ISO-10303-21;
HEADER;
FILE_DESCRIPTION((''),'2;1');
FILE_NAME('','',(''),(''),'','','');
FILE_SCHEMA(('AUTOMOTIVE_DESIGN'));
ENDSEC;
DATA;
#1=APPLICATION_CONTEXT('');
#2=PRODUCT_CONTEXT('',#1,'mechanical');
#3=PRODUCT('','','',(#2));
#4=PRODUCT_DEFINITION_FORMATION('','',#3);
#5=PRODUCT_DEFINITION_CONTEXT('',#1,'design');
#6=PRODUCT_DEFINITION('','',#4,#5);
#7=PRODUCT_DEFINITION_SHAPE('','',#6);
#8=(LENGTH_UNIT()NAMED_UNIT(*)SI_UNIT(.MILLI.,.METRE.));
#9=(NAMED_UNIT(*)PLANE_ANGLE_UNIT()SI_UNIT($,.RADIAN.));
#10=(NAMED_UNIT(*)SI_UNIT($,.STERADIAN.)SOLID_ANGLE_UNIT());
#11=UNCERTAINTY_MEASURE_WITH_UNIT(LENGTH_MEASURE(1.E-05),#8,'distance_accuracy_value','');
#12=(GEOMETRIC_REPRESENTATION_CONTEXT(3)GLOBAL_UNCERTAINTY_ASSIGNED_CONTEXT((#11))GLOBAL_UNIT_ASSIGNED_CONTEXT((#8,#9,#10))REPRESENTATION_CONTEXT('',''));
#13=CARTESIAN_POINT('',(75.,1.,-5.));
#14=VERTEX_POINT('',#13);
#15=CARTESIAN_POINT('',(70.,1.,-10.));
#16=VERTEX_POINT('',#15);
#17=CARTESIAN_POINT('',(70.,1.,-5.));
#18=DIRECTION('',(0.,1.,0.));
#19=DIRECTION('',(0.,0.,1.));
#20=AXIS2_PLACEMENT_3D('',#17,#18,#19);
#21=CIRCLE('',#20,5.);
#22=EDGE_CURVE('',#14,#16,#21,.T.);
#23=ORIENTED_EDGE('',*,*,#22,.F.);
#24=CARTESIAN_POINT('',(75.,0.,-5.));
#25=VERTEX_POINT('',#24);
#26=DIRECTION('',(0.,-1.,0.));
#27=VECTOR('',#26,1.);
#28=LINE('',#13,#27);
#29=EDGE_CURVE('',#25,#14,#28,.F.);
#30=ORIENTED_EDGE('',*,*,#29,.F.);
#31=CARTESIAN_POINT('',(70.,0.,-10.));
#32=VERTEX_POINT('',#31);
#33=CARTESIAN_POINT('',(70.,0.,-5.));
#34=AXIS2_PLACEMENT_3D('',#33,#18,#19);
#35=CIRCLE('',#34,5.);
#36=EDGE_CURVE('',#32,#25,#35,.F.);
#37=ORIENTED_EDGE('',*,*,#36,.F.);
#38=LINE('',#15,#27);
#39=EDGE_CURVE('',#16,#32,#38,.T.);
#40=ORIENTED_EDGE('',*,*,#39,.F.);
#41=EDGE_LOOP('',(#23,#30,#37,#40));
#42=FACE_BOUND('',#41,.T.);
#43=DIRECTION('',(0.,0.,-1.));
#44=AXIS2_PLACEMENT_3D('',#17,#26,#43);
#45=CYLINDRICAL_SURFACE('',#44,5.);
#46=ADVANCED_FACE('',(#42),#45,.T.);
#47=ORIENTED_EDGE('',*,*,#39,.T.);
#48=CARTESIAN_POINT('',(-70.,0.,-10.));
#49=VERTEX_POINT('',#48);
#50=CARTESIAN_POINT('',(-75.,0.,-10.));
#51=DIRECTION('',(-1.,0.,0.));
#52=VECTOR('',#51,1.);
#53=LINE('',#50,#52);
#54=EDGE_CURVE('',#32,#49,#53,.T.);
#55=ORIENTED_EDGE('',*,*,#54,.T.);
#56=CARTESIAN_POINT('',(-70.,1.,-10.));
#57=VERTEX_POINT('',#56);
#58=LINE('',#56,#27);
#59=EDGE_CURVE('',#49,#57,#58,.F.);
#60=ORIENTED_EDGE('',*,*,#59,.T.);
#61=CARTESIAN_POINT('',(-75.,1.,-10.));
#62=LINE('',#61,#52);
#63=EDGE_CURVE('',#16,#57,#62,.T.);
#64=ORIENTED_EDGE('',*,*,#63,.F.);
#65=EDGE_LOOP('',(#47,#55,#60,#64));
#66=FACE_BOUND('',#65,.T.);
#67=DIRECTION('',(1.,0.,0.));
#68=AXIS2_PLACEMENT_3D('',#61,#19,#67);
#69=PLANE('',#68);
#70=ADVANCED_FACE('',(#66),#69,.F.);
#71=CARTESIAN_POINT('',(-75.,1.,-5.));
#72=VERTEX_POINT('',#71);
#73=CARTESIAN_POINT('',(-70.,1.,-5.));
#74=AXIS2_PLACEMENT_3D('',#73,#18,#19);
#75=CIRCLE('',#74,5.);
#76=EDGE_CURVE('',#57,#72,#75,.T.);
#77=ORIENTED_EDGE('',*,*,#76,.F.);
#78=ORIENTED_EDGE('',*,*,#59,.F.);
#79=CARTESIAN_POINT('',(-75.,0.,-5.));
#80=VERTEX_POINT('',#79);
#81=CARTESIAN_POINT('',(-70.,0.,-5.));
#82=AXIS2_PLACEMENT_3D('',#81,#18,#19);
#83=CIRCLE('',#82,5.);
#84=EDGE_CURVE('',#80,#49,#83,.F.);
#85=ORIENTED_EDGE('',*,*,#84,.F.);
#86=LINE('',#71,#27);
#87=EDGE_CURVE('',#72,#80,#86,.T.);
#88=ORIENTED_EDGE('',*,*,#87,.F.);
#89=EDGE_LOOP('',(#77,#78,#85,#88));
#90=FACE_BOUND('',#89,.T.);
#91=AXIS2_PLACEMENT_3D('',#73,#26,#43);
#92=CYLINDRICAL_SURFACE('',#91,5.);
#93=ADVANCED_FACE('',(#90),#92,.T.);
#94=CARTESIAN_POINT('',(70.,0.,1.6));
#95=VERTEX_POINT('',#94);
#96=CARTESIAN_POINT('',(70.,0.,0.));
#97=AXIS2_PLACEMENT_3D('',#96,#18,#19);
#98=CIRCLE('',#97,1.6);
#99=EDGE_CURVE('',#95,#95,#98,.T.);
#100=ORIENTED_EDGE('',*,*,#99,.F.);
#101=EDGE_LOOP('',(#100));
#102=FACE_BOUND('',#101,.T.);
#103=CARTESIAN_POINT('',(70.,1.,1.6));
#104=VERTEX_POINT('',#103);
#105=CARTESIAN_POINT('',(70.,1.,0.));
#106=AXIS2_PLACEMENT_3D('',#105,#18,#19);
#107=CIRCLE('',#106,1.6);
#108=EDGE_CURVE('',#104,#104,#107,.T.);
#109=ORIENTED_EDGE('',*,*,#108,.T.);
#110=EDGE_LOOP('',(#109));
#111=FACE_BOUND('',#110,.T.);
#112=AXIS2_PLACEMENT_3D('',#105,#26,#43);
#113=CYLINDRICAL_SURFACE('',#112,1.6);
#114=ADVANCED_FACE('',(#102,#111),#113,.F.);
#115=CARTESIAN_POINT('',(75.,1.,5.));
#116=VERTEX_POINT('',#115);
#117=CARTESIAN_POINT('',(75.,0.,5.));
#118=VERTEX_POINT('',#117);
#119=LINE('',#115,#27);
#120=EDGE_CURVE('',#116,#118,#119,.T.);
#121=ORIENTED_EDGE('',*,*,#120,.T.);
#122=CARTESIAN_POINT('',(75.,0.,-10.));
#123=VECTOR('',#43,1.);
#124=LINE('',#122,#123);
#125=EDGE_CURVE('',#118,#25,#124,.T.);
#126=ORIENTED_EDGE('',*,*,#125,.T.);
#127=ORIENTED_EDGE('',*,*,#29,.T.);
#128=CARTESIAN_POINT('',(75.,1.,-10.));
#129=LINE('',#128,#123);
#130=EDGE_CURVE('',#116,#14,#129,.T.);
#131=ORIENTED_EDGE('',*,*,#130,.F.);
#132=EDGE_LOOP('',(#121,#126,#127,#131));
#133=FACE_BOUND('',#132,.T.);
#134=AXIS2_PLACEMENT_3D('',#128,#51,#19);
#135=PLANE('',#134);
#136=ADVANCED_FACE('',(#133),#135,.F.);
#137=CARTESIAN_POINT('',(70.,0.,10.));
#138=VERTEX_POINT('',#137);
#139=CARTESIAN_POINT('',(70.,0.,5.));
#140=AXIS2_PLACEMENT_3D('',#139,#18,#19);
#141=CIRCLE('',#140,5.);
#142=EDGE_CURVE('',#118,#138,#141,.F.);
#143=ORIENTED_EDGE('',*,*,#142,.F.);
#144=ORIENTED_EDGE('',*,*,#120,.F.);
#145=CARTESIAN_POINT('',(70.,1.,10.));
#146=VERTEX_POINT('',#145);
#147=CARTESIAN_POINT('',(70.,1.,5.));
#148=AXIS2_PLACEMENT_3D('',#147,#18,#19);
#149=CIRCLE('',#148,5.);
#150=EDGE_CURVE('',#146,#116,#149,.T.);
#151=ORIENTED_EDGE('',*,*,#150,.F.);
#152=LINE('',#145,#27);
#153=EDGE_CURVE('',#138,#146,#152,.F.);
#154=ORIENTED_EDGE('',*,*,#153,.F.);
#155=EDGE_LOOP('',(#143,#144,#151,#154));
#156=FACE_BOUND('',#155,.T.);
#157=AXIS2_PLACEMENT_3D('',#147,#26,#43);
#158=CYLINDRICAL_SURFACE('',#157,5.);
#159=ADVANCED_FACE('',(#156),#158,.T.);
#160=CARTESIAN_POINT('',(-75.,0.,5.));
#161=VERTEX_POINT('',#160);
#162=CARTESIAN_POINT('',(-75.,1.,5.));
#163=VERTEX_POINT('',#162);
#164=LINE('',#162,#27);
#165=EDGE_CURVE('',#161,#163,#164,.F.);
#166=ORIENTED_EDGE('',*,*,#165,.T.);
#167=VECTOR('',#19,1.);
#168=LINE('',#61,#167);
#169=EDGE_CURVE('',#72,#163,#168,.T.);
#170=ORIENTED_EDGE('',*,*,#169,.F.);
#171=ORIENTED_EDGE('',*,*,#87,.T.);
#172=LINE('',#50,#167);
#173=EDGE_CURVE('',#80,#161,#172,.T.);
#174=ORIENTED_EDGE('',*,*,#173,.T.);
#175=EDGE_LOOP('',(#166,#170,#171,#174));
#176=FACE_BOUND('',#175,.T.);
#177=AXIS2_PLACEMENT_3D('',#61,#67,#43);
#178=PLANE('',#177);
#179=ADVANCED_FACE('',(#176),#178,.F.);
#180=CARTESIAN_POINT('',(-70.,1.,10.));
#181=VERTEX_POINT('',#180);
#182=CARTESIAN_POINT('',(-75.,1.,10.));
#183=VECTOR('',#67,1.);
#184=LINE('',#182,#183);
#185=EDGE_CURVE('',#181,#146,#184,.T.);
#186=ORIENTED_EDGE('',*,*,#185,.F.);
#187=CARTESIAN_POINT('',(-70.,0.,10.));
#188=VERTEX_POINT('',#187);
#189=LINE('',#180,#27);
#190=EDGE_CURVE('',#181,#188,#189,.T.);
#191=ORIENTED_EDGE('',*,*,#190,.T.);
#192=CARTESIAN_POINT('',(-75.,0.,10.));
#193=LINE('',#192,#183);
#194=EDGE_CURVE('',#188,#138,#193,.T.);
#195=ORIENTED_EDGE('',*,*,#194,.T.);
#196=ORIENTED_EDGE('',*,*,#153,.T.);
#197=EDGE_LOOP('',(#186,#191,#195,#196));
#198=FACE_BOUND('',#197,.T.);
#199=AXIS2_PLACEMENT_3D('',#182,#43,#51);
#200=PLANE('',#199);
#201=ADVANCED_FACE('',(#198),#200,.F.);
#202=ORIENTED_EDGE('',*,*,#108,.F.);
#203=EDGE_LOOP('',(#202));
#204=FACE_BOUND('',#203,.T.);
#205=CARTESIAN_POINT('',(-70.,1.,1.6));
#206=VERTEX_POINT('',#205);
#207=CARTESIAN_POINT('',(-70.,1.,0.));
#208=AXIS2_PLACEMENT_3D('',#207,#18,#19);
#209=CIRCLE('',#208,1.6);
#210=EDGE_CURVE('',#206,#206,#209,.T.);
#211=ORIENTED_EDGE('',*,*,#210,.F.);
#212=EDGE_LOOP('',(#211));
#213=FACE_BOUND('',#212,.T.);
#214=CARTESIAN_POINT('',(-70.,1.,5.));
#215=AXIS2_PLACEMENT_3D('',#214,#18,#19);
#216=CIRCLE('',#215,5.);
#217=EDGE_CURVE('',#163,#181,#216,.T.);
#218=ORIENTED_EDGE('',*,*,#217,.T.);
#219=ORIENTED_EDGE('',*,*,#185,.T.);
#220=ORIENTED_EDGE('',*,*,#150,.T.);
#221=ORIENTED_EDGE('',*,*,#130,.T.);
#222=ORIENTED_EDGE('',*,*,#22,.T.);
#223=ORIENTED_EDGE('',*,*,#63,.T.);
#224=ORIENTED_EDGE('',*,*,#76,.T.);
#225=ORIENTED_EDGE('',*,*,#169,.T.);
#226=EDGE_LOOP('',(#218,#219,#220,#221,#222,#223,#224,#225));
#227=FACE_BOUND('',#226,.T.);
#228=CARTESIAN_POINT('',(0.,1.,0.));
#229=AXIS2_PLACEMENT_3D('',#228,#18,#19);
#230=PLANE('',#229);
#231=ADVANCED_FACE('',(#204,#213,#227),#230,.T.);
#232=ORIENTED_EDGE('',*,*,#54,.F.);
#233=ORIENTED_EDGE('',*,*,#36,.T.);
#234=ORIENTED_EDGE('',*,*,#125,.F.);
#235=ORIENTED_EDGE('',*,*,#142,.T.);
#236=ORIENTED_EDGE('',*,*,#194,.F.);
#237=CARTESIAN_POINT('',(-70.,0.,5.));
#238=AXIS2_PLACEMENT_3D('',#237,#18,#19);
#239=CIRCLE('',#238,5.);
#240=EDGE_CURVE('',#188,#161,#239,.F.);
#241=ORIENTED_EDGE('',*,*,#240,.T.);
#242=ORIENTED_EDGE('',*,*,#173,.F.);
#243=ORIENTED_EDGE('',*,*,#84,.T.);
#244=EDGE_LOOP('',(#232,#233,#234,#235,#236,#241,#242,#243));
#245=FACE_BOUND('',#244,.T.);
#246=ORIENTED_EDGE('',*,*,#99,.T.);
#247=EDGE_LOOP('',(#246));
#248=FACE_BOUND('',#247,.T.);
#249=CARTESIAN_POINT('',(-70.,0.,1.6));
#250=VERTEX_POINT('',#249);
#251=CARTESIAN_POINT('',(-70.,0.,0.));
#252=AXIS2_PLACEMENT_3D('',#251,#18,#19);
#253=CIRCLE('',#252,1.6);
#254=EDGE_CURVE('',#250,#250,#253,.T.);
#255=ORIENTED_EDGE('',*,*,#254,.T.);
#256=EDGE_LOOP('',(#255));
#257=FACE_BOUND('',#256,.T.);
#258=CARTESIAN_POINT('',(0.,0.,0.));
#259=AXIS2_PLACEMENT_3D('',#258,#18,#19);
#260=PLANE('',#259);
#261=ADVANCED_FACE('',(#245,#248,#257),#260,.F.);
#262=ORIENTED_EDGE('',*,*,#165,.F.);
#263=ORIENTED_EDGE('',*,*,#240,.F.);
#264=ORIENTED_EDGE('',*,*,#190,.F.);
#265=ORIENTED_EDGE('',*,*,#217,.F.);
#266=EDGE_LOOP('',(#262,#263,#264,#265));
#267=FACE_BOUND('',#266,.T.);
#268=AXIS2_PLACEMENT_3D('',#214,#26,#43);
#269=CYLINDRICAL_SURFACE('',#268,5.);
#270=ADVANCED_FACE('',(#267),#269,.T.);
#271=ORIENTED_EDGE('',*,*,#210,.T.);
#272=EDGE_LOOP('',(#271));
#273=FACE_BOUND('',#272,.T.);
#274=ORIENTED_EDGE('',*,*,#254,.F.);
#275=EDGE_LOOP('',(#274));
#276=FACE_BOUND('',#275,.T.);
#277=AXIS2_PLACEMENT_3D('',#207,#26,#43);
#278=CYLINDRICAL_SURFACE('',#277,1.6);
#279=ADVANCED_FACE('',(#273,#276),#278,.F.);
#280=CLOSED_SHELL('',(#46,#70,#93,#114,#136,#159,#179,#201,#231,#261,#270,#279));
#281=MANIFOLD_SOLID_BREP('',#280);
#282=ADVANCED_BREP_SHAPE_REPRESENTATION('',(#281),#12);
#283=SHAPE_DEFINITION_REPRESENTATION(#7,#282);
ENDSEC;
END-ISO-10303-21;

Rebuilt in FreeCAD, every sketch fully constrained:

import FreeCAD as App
import Part
import Sketcher


def edges_at(feature, points):
    """Names of the edges that pass closest to the given points."""
    edges = feature.Shape.Edges
    near = lambda p: min(range(len(edges)), key=lambda i: edges[i].distToShape(Part.Vertex(*p))[0])
    return sorted({f"Edge{near(p) + 1}" for p in points})

doc = App.newDocument("Part")
body = doc.addObject("PartDesign::Body", "Body")

# Sketch on XZ plane
sketch1 = doc.addObject("Sketcher::SketchObject", "Sketch")
body.addObject(sketch1)
sketch1.AttachmentSupport = (doc.XZ_Plane, [""])
sketch1.MapMode = "FlatFace"
sketch1.addGeometry([
    Part.LineSegment(App.Vector(-75, -10, 0), App.Vector(-75, 10, 0)),  # 0
    Part.LineSegment(App.Vector(-75, 10, 0), App.Vector(75, 10, 0)),  # 1
    Part.LineSegment(App.Vector(75, 10, 0), App.Vector(75, -10, 0)),  # 2
    Part.LineSegment(App.Vector(75, -10, 0), App.Vector(-75, -10, 0)),  # 3
    Part.Circle(App.Vector(-70, 0, 0), App.Vector(0, 0, 1), 1.6),  # 4
    Part.Circle(App.Vector(70, 0, 0), App.Vector(0, 0, 1), 1.6),  # 5
], False)
sketch1.addConstraint([
    Sketcher.Constraint("Coincident", 0, 2, 1, 1),
    Sketcher.Constraint("Coincident", 1, 2, 2, 1),
    Sketcher.Constraint("Coincident", 2, 2, 3, 1),
    Sketcher.Constraint("Coincident", 3, 2, 0, 1),
    Sketcher.Constraint("Vertical", 0),
    Sketcher.Constraint("Horizontal", 1),
    Sketcher.Constraint("Vertical", 2),
    Sketcher.Constraint("Horizontal", 3),
    Sketcher.Constraint("Equal", 4, 5),
    Sketcher.Constraint("Symmetric", 4, 3, 5, 3, -1, 1),
    Sketcher.Constraint("Symmetric", 0, 2, 2, 2, -1, 1),
    Sketcher.Constraint("PointOnObject", 4, 3, -1),
    Sketcher.Constraint("Diameter", 4, 3.2),
    Sketcher.Constraint("DistanceX", 1, 1, 1, 2, 150.0),
    Sketcher.Constraint("DistanceY", 0, 1, 0, 2, 20.0),
    Sketcher.Constraint("DistanceX", 4, 3, -1, 1, 70.0),
])
pad1 = doc.addObject("PartDesign::Pad", "Pad")
body.addObject(pad1)
pad1.Profile = sketch1
pad1.Length = 1
pad1.Reversed = True
doc.recompute()

fillet = doc.addObject("PartDesign::Fillet", "Fillet")
body.addObject(fillet)
fillet.Base = (pad1, edges_at(pad1, [
    (75, 0.5, 10),
    (-75, 0.5, 10),
    (-75, 0.5, -10),
    (75, 0.5, -10),
]))
fillet.Radius = 5

doc.recompute()
